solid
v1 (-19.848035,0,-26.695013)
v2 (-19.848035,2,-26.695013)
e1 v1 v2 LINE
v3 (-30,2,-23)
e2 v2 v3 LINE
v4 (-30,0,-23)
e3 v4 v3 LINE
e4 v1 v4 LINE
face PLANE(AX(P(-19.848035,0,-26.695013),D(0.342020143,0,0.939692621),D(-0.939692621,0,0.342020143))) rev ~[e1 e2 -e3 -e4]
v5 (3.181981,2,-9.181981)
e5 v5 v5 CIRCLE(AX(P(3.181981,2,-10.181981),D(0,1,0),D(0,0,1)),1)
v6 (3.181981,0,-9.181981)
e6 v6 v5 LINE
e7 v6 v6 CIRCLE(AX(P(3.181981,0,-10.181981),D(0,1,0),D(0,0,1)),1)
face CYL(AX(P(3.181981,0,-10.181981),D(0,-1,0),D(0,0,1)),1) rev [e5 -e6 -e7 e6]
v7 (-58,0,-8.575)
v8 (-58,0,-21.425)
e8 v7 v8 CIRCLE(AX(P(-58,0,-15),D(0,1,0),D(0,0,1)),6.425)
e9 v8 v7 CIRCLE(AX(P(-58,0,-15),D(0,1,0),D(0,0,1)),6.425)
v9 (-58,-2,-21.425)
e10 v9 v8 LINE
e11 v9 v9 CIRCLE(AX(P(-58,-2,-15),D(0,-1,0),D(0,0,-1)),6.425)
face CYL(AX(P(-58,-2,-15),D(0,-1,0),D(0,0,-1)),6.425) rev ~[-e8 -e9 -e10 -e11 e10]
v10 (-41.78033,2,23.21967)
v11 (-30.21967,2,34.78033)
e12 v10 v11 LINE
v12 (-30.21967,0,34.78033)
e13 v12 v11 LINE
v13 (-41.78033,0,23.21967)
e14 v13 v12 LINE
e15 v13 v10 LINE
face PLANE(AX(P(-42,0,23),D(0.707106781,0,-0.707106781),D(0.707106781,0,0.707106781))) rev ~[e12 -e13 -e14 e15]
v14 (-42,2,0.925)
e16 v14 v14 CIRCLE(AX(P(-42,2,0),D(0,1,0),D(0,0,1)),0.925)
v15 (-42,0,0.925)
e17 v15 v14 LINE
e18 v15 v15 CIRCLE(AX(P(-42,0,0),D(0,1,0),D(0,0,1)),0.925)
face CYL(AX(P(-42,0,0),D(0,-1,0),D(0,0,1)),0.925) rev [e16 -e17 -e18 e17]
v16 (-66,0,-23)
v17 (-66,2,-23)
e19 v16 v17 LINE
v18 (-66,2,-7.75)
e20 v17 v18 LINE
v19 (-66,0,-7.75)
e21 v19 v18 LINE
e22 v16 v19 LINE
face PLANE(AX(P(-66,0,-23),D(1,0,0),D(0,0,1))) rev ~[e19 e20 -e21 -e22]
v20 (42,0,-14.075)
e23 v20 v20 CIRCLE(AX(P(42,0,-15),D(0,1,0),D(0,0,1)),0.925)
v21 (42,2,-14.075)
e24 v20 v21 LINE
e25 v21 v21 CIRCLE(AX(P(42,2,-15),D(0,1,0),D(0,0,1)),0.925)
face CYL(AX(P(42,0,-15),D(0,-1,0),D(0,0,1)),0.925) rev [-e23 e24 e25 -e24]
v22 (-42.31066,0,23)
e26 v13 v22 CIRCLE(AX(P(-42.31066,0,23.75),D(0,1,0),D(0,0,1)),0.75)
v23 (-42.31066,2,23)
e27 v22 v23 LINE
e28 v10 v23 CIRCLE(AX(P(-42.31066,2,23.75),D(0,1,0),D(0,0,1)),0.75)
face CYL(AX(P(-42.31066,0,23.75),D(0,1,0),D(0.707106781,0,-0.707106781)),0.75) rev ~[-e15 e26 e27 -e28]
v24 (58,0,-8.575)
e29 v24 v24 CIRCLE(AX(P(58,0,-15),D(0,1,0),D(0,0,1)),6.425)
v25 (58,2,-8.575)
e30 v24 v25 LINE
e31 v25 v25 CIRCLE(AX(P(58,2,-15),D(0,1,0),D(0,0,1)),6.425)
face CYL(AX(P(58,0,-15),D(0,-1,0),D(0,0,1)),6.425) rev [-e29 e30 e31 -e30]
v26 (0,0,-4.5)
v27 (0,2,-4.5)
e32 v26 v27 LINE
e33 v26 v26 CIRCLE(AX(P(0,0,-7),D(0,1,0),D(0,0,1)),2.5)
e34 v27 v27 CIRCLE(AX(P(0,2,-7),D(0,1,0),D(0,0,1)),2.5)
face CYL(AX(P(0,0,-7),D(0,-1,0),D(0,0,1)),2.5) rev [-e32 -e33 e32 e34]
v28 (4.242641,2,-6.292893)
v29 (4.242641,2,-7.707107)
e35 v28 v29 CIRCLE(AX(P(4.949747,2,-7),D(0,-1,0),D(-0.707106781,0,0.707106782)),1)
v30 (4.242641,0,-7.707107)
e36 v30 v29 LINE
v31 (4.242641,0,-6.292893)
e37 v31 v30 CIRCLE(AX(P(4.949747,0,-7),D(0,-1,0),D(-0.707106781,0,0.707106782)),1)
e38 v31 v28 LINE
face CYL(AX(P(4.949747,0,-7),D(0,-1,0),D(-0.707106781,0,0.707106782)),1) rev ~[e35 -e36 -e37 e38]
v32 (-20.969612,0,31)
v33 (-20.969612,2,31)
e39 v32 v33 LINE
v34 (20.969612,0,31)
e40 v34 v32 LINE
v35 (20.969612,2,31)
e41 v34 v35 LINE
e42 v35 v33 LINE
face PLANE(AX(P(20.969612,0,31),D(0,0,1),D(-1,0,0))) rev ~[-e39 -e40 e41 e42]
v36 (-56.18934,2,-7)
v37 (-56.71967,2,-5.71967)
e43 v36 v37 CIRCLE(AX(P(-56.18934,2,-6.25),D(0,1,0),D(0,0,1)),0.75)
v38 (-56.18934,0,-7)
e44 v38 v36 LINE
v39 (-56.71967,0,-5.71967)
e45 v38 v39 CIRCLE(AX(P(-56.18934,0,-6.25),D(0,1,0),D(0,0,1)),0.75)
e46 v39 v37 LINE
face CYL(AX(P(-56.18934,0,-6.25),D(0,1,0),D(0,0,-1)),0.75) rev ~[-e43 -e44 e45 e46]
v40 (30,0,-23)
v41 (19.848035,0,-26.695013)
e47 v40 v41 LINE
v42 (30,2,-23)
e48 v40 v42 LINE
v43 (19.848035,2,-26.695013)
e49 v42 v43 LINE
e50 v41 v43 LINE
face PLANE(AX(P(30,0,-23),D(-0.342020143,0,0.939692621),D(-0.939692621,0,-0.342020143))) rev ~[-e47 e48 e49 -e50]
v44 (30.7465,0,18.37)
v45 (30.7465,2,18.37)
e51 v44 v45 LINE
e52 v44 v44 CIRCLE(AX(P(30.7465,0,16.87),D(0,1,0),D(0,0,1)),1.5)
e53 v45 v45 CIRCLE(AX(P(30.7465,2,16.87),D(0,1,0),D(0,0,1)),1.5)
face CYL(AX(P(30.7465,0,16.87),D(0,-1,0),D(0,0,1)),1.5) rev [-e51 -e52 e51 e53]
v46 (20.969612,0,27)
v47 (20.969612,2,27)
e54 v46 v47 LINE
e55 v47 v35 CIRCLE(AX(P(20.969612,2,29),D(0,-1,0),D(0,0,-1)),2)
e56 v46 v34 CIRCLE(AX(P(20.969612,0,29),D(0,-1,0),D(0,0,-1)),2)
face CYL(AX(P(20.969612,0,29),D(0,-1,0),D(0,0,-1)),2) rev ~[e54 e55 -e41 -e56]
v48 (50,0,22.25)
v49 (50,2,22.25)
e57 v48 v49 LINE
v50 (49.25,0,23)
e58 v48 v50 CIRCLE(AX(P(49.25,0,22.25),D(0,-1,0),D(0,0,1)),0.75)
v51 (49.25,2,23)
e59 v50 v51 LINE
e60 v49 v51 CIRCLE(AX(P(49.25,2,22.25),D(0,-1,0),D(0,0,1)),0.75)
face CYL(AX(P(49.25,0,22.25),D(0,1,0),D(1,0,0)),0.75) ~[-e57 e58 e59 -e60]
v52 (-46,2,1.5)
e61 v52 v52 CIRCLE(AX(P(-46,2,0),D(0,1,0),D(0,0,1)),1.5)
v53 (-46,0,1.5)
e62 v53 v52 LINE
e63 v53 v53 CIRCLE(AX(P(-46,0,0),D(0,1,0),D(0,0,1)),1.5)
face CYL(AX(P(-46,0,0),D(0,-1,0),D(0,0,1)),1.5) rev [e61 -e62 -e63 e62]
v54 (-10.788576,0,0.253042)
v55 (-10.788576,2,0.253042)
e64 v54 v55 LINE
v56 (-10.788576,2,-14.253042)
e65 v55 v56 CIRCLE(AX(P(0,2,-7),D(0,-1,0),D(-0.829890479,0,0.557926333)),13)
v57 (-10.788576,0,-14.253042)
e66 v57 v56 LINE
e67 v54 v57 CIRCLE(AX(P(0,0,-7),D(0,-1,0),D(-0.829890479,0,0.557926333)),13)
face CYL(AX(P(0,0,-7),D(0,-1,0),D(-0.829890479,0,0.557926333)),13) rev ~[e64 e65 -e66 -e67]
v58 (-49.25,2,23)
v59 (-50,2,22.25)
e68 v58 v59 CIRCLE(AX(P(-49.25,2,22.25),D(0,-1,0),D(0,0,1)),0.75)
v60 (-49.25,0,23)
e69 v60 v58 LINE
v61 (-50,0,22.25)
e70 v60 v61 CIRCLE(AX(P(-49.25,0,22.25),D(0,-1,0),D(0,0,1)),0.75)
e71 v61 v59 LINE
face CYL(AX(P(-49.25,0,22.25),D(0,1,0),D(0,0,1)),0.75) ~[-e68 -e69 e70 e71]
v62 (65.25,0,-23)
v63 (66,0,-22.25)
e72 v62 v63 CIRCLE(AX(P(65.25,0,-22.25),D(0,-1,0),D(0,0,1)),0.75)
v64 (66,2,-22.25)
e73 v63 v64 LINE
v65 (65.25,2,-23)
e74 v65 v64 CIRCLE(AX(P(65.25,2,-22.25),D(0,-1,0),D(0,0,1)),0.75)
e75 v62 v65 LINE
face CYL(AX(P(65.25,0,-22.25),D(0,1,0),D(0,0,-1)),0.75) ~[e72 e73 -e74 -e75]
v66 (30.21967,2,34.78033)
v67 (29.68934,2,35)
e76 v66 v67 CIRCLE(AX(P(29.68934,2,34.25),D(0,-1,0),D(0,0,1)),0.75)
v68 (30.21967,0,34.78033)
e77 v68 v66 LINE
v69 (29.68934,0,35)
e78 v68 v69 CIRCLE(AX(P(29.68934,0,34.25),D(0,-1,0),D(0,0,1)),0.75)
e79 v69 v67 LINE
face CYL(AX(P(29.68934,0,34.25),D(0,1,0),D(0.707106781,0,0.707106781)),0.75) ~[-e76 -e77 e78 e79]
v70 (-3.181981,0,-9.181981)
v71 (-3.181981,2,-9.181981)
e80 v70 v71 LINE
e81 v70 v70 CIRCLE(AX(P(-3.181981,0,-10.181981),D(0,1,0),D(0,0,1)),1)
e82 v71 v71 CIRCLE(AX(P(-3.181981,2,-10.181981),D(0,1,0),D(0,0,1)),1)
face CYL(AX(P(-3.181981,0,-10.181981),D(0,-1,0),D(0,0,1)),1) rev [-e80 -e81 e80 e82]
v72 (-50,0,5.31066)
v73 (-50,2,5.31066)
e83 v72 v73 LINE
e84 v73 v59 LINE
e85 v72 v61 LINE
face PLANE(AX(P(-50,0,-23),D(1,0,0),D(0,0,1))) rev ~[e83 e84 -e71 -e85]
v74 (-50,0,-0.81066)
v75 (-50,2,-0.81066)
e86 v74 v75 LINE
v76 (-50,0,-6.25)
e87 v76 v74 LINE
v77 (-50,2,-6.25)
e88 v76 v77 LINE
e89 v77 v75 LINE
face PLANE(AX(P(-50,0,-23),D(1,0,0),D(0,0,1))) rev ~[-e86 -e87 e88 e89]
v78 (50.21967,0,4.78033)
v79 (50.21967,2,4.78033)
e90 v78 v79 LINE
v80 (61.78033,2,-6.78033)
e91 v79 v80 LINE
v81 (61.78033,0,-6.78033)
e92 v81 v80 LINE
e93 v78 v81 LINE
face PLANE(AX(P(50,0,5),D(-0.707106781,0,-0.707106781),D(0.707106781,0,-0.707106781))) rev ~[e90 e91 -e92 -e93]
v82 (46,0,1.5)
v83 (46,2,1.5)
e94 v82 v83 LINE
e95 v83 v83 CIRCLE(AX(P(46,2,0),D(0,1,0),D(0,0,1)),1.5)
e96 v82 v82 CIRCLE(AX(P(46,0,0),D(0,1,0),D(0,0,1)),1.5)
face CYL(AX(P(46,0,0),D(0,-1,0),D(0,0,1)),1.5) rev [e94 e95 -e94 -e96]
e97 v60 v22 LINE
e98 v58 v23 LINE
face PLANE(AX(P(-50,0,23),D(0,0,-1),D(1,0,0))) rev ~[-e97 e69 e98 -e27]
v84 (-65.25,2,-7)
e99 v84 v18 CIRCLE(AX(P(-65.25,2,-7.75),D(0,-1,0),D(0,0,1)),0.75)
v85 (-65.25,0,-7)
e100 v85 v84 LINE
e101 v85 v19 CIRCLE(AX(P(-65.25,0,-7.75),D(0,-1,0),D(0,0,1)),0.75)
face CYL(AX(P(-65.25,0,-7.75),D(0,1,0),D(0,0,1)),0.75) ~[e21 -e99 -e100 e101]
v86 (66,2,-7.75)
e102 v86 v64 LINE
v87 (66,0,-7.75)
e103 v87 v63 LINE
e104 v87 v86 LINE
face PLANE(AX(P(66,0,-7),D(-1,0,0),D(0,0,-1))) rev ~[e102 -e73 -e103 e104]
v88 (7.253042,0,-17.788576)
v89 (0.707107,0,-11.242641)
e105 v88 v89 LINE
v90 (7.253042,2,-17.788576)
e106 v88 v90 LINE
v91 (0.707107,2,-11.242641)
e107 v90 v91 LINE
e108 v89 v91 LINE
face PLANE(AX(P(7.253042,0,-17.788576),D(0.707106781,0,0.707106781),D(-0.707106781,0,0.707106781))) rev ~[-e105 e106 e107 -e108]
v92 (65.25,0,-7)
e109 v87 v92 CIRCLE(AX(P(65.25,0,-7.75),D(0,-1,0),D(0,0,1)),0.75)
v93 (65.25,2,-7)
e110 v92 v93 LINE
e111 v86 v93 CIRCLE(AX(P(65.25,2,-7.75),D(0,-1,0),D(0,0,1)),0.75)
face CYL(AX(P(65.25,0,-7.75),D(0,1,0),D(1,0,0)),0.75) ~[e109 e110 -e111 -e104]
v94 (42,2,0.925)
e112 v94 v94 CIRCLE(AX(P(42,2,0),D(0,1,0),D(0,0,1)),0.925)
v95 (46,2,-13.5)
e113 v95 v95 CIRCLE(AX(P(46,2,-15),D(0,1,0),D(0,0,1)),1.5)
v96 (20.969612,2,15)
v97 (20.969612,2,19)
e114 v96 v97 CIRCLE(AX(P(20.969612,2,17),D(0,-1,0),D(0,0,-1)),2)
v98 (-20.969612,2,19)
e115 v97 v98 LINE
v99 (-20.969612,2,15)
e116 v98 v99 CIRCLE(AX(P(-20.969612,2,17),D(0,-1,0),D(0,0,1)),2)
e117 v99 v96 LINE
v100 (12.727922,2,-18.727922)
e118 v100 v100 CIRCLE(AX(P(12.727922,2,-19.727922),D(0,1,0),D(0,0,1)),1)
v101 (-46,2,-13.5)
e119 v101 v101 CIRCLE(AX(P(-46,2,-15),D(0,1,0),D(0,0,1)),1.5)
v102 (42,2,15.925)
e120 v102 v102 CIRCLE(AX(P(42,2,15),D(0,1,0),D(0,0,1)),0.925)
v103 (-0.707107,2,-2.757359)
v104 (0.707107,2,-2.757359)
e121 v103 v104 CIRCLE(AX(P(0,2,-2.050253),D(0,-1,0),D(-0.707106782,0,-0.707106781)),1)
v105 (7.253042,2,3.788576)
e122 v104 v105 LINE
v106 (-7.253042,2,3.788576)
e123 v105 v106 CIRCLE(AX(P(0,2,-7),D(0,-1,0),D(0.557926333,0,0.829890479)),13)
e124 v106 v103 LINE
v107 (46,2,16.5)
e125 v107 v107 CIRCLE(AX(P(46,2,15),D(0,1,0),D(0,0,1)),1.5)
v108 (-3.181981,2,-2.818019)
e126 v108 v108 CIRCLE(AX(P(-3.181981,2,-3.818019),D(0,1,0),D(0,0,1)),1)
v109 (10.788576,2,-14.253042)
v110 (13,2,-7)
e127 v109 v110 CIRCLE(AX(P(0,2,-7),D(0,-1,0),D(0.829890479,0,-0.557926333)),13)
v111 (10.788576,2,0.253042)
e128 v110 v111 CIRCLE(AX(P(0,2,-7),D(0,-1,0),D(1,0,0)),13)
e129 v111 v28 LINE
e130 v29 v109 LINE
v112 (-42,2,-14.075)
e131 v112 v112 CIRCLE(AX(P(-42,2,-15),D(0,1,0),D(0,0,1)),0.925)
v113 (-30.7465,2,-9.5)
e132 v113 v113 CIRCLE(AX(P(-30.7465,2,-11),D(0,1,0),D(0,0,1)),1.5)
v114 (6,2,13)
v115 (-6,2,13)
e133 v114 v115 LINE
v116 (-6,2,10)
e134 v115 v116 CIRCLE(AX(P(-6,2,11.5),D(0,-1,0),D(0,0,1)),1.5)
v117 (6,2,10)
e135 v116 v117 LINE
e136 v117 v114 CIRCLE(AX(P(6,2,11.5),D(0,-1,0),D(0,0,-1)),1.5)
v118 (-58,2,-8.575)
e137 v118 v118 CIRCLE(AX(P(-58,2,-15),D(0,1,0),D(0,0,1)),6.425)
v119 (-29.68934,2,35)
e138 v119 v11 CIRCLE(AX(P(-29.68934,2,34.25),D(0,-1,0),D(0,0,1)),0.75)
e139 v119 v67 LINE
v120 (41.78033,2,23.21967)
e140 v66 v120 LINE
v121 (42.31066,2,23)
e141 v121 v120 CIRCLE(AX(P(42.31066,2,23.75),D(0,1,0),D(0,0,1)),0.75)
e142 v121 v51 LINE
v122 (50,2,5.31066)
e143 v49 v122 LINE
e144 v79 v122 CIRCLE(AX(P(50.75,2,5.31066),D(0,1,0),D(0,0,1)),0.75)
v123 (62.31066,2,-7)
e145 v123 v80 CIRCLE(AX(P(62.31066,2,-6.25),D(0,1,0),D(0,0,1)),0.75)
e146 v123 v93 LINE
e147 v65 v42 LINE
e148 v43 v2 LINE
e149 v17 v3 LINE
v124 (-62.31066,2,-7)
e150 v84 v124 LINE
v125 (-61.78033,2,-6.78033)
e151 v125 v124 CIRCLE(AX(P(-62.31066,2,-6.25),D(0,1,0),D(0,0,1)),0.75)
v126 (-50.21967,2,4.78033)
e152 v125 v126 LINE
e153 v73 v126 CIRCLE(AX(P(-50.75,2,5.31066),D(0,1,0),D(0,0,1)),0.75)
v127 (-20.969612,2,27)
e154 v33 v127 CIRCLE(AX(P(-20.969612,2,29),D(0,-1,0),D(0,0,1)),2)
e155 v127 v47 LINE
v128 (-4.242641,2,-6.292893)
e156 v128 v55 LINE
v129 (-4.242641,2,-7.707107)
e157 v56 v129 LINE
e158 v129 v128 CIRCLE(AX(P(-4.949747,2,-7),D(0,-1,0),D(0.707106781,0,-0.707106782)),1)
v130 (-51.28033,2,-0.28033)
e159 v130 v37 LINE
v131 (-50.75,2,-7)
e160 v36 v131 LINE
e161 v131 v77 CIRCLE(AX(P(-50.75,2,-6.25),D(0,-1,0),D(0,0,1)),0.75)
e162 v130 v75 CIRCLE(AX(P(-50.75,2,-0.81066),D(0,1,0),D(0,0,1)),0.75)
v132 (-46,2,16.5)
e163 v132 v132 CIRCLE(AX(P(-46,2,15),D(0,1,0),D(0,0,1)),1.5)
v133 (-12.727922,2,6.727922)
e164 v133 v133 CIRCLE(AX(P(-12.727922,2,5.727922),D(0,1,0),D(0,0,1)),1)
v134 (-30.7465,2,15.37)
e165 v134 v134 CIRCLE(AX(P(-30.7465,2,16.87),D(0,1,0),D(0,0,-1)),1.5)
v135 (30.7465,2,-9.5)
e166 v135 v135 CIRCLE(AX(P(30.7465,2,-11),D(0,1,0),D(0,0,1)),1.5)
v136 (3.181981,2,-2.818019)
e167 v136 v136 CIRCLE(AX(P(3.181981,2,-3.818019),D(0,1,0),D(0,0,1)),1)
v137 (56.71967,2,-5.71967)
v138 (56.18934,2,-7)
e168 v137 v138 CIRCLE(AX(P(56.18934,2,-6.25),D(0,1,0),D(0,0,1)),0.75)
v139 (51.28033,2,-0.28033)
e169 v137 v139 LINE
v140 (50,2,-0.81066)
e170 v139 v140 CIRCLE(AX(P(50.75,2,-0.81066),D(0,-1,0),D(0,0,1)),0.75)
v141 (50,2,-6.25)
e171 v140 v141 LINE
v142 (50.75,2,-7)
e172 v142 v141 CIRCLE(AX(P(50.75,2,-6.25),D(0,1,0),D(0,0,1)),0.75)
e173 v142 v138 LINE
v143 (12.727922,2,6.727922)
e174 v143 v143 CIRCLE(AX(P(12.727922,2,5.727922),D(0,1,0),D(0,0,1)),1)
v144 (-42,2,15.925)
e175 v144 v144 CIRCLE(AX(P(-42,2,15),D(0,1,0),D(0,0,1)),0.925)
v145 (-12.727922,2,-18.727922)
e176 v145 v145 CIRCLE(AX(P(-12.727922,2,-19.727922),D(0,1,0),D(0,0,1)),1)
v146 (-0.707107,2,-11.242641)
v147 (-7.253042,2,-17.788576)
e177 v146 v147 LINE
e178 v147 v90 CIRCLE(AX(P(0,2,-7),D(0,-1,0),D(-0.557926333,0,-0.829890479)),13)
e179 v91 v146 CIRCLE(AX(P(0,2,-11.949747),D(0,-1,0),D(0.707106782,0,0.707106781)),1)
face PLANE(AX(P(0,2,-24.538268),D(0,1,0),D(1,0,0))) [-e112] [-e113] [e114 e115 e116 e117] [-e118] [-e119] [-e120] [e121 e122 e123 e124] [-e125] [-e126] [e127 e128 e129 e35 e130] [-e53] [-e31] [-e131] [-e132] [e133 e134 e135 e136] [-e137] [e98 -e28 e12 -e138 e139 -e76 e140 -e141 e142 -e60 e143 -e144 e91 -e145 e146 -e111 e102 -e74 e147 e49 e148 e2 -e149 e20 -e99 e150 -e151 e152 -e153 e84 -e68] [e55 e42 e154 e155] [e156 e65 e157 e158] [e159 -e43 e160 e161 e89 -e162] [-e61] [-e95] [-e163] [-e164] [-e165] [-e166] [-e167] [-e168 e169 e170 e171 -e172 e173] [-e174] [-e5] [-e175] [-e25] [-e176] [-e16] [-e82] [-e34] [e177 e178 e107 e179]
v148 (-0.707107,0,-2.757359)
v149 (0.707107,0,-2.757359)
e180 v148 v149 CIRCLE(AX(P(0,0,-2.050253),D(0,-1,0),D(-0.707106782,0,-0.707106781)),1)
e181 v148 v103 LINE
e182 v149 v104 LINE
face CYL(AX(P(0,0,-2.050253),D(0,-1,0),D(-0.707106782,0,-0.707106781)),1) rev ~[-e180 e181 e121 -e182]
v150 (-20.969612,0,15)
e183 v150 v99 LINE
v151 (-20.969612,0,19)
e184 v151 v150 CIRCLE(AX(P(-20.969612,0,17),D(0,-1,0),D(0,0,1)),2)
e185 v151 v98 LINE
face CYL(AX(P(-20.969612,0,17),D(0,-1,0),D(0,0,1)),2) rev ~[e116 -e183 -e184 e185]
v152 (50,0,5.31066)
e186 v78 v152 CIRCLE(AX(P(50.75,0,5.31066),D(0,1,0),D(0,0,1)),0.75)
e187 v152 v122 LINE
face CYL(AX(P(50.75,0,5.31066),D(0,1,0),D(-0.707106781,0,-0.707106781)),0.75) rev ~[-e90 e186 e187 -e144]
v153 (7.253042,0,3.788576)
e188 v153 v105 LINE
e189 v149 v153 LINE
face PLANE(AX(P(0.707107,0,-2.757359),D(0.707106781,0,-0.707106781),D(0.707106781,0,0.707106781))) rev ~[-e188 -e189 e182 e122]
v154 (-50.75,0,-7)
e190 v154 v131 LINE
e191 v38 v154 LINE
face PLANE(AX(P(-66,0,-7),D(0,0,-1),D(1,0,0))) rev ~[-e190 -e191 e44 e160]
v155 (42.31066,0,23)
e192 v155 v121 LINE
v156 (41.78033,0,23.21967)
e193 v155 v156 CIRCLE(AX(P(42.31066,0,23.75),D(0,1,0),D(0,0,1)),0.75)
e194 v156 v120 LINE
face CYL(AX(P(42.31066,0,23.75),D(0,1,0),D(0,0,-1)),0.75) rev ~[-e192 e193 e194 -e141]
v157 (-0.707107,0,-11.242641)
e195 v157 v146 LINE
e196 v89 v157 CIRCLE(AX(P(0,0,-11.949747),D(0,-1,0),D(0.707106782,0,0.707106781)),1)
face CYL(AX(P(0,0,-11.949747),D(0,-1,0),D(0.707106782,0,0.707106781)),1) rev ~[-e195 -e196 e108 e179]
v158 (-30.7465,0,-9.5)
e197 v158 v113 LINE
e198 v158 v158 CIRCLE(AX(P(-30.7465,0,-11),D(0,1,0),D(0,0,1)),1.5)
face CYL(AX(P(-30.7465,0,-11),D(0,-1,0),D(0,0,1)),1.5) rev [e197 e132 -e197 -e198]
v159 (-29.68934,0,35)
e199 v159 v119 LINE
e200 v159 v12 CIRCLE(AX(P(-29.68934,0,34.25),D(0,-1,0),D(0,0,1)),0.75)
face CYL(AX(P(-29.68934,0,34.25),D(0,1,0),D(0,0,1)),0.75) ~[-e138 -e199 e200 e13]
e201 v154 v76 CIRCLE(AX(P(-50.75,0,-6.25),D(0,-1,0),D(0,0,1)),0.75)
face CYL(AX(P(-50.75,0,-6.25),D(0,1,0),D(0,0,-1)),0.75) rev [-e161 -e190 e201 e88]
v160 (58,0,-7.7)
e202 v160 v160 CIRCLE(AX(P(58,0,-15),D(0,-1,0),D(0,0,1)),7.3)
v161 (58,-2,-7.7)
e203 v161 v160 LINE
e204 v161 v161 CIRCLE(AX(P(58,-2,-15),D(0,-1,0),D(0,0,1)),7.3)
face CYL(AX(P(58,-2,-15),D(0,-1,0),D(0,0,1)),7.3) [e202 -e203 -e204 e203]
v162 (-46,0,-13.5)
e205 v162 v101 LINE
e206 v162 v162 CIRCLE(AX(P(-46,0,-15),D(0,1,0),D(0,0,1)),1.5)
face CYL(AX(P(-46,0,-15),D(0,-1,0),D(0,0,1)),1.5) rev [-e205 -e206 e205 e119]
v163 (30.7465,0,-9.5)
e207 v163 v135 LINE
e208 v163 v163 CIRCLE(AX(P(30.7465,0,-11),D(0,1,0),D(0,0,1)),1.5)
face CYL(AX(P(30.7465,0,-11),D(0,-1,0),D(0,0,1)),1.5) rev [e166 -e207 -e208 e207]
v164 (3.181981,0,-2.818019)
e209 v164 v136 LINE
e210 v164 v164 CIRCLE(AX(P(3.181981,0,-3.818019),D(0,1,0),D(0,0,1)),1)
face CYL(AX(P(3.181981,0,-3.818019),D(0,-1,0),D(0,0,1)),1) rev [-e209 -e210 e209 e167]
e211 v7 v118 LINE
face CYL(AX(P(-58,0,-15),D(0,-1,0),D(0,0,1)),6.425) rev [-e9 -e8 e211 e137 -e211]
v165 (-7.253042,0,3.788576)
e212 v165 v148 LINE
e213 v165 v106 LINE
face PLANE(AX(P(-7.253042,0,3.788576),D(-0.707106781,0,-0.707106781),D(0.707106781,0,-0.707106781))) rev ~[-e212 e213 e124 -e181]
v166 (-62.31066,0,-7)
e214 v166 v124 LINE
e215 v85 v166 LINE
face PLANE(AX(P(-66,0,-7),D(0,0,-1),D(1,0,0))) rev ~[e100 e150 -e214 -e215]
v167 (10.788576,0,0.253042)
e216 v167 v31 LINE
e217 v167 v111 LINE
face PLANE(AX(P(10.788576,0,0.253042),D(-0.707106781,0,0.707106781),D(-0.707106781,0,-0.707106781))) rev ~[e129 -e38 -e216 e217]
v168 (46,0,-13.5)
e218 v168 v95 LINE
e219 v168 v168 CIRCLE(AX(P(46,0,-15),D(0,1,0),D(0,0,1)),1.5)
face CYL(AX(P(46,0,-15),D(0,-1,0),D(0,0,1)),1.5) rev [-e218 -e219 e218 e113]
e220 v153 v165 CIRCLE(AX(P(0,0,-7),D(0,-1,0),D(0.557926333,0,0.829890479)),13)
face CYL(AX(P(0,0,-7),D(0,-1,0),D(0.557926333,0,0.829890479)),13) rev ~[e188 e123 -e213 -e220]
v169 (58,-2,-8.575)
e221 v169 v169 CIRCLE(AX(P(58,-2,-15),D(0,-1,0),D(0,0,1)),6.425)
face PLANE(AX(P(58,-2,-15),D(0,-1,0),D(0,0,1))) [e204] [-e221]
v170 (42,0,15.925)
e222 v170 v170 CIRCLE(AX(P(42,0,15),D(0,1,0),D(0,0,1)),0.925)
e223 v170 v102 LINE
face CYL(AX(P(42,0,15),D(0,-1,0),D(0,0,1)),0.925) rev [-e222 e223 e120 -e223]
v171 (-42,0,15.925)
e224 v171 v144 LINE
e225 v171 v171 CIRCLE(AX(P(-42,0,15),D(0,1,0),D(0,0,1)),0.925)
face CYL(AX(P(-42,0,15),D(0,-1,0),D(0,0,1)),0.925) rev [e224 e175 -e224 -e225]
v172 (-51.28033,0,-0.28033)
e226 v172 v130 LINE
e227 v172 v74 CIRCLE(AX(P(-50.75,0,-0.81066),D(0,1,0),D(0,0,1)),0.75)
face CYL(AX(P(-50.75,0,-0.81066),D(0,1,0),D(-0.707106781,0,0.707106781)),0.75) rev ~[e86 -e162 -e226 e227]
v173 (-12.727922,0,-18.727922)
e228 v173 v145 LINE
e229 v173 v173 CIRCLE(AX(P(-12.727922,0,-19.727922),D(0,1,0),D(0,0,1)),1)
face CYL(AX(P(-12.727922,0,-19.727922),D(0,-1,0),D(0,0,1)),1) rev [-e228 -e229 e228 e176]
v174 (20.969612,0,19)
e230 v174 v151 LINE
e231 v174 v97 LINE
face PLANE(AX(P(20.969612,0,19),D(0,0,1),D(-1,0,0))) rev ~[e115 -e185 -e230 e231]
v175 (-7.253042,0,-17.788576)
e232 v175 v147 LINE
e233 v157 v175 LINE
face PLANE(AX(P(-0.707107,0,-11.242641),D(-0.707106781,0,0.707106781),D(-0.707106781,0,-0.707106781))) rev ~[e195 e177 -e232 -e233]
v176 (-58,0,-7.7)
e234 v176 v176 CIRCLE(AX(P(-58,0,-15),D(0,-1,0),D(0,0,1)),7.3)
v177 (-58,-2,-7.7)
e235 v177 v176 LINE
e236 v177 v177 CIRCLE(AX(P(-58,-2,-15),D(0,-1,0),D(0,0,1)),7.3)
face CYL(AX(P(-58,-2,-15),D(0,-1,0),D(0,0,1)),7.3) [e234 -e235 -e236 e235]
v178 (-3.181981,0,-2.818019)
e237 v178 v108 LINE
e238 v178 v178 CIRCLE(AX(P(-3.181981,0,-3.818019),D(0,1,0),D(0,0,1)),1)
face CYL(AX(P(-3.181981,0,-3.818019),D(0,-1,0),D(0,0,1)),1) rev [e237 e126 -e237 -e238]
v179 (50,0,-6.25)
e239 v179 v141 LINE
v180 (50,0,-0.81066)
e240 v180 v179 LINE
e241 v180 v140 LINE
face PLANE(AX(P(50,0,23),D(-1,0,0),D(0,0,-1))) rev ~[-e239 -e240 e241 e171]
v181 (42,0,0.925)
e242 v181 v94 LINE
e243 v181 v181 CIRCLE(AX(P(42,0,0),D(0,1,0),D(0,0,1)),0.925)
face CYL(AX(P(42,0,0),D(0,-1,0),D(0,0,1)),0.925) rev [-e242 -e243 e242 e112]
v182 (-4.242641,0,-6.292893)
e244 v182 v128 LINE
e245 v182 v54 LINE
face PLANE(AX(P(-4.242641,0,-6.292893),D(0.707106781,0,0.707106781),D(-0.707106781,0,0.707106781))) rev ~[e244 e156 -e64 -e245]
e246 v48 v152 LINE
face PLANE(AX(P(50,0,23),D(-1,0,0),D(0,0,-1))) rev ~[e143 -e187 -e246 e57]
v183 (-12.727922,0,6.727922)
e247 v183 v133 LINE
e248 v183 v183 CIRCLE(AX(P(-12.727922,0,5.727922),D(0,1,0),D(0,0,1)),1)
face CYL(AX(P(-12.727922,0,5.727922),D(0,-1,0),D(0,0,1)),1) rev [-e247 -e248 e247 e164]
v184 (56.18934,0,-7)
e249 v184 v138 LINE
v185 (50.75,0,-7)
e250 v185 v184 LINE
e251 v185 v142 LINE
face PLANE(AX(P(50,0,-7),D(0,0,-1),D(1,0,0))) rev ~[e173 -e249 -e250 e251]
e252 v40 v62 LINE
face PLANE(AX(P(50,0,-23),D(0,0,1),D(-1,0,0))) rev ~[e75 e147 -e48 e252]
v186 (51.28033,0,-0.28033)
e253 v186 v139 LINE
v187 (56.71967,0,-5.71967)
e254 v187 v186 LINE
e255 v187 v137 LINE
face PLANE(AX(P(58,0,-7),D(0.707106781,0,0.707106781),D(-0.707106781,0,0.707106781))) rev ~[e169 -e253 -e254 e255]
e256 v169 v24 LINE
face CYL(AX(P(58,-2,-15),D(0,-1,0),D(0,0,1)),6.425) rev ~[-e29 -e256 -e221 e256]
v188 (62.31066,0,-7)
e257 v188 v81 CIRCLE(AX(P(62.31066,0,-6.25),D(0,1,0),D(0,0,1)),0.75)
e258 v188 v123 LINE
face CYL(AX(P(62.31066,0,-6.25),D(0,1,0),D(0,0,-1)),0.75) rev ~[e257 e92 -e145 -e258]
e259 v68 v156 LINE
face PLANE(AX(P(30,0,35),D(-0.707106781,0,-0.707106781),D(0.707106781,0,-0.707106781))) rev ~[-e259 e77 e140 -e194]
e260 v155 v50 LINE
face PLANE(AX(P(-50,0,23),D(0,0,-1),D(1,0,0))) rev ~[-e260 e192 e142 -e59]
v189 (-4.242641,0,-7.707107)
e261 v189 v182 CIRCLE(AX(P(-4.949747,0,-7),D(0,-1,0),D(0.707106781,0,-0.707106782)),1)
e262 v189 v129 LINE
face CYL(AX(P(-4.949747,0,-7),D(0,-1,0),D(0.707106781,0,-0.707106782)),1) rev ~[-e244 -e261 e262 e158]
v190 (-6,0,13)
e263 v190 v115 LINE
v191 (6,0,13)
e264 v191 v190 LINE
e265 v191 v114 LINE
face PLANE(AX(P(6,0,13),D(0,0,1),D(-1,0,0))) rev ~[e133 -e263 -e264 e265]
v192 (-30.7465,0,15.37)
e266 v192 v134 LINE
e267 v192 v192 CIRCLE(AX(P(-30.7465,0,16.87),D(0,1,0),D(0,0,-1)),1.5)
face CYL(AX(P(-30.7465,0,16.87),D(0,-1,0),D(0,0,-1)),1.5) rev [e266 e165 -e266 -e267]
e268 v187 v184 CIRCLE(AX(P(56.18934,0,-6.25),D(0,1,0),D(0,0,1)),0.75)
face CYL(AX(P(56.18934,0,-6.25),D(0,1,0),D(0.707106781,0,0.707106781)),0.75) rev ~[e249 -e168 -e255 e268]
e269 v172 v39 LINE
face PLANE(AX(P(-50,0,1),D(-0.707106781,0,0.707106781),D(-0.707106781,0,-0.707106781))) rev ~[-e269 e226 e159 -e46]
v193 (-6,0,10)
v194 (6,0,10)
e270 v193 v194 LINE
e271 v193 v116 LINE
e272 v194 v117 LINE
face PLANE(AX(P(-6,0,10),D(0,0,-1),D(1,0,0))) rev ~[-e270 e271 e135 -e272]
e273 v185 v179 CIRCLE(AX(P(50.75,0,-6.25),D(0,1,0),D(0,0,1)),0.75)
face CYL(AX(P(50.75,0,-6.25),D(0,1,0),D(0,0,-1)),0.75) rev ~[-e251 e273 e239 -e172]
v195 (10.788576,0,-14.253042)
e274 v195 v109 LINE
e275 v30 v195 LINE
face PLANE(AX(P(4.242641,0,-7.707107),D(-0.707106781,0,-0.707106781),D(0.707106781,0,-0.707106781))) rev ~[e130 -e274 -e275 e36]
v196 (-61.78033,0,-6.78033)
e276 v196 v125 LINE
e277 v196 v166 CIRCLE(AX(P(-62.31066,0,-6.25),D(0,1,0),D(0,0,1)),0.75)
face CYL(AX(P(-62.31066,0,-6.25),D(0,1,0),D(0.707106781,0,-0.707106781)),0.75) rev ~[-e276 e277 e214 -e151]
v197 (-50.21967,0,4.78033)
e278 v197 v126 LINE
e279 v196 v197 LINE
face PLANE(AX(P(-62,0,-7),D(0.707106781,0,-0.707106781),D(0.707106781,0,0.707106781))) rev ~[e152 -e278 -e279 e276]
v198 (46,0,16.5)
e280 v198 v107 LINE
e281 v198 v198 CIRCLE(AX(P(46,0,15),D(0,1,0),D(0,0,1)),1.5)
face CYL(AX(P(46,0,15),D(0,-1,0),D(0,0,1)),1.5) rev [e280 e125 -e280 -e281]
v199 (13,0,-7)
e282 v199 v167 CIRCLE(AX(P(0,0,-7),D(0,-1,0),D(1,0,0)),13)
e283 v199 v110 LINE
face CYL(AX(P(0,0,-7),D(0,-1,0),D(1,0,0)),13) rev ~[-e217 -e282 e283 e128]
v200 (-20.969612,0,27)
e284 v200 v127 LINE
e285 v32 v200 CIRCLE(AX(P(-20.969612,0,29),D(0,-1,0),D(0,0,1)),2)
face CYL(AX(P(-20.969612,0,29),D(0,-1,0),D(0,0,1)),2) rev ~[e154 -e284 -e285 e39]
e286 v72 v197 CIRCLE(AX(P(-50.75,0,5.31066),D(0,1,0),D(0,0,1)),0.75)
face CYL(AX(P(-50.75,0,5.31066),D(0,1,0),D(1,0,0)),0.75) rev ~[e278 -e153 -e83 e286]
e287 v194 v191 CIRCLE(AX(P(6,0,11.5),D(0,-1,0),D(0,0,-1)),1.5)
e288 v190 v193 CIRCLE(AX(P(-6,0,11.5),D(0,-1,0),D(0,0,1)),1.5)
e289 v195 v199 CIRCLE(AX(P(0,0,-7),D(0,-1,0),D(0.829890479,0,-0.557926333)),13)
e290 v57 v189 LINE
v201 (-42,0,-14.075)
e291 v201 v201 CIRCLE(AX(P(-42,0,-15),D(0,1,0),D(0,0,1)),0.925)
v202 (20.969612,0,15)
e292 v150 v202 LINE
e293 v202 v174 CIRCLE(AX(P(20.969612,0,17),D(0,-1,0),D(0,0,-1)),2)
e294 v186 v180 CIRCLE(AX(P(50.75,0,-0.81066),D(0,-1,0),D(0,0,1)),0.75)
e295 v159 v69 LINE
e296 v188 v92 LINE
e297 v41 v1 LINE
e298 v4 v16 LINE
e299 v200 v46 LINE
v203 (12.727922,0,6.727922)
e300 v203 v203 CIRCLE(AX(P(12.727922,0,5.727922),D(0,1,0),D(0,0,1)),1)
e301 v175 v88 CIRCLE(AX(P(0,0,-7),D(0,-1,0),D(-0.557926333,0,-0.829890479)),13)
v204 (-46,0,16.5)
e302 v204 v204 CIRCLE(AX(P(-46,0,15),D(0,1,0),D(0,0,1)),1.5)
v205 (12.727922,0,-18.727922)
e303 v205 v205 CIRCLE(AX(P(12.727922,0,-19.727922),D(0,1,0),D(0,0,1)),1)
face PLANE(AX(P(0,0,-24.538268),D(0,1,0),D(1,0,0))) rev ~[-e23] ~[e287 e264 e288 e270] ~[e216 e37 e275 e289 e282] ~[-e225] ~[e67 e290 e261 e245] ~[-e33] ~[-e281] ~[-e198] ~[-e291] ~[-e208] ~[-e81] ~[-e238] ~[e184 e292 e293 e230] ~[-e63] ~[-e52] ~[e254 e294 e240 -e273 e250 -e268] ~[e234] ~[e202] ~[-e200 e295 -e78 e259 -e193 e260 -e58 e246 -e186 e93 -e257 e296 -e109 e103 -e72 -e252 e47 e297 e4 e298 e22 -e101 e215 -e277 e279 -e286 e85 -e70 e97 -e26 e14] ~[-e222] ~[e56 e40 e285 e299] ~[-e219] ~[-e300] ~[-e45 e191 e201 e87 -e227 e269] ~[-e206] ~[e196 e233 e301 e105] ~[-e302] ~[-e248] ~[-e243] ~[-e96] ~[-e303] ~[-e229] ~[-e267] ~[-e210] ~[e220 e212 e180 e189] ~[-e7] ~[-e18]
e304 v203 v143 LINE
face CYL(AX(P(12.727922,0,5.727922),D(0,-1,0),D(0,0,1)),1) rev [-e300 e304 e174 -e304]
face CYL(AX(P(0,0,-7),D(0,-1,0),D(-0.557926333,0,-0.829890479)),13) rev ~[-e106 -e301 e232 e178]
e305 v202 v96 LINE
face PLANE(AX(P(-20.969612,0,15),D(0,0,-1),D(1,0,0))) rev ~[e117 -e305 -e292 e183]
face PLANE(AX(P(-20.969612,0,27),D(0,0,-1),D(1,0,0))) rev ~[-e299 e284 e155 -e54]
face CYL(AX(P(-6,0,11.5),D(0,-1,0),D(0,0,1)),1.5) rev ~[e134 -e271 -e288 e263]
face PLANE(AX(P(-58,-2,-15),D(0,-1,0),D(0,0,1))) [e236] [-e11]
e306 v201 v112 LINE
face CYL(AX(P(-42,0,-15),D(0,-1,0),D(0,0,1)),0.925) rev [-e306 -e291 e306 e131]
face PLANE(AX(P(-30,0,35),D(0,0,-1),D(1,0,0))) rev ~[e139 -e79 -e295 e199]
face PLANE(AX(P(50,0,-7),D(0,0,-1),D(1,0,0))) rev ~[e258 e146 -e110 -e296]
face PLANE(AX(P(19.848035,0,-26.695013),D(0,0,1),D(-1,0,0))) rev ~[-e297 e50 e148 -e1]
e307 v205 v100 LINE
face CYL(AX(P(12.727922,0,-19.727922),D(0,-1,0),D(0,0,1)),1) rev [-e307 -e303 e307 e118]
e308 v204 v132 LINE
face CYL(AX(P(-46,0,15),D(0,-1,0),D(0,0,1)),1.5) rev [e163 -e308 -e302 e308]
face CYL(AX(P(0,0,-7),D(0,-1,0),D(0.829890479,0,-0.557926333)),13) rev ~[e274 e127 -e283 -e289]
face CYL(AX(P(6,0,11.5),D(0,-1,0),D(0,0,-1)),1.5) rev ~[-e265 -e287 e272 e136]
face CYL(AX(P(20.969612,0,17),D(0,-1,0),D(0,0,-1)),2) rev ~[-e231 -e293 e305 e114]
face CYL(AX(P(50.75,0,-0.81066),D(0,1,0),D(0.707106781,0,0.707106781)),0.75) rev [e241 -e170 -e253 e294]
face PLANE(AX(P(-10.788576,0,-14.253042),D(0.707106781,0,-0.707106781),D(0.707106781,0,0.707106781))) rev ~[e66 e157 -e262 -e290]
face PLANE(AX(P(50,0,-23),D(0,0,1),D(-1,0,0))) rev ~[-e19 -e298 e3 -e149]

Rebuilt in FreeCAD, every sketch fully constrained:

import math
import FreeCAD as App
import Part
import Sketcher
Q = App.Units.Quantity


def edges_at(feature, points):
    """Names of the edges that pass closest to the given points."""
    edges = feature.Shape.Edges
    near = lambda p: min(range(len(edges)), key=lambda i: edges[i].distToShape(Part.Vertex(*p))[0])
    return sorted({f"Edge{near(p) + 1}" for p in points})

doc = App.newDocument("Part")
body = doc.addObject("PartDesign::Body", "Body")

sketch1 = body.newObject("Sketcher::SketchObject", "Sketch")
sketch1.AttachmentSupport = (doc.getObject("XZ_Plane"), [""])
sketch1.MapMode = "FlatFace"
sketch1.addGeometry([
    Part.LineSegment(App.Vector(-19.8, -26.7, 0), App.Vector(-30, -23, 0)),
    Part.LineSegment(App.Vector(-30, -23, 0), App.Vector(-66, -23, 0)),
    Part.LineSegment(App.Vector(-66, -23, 0), App.Vector(-66, -7, 0)),
    Part.LineSegment(App.Vector(-66, -7, 0), App.Vector(-62, -7, 0)),
    Part.LineSegment(App.Vector(-62, -7, 0), App.Vector(-50, 5, 0)),
    Part.LineSegment(App.Vector(-50, 5, 0), App.Vector(-50, 23, 0)),
    Part.LineSegment(App.Vector(-50, 23, 0), App.Vector(-42, 23, 0)),
    Part.LineSegment(App.Vector(-42, 23, 0), App.Vector(-30, 35, 0)),
    Part.LineSegment(App.Vector(-30, 35, 0), App.Vector(30, 35, 0)),
    Part.LineSegment(App.Vector(30, 35, 0), App.Vector(42, 23, 0)),
    Part.LineSegment(App.Vector(42, 23, 0), App.Vector(50, 23, 0)),
    Part.LineSegment(App.Vector(50, 23, 0), App.Vector(50, 5, 0)),
    Part.LineSegment(App.Vector(50, 5, 0), App.Vector(62, -7, 0)),
    Part.LineSegment(App.Vector(62, -7, 0), App.Vector(66, -7, 0)),
    Part.LineSegment(App.Vector(66, -7, 0), App.Vector(66, -23, 0)),
    Part.LineSegment(App.Vector(66, -23, 0), App.Vector(30, -23, 0)),
    Part.LineSegment(App.Vector(30, -23, 0), App.Vector(19.8, -26.7, 0)),
    Part.LineSegment(App.Vector(19.8, -26.7, 0), App.Vector(-19.8, -26.7, 0)),
    Part.LineSegment(App.Vector(-50, -7, 0), App.Vector(-50, 1, 0)),
    Part.LineSegment(App.Vector(-50, 1, 0), App.Vector(-58, -7, 0)),
    Part.LineSegment(App.Vector(-58, -7, 0), App.Vector(-50, -7, 0)),
    Part.Circle(App.Vector(46, -15, 0), App.Vector(0, 0, 1), 1.5),
    Part.LineSegment(App.Vector(50, 1, 0), App.Vector(50, -7, 0)),
    Part.LineSegment(App.Vector(50, -7, 0), App.Vector(58, -7, 0)),
    Part.LineSegment(App.Vector(58, -7, 0), App.Vector(50, 1, 0)),
    Part.Circle(App.Vector(-46, 15, 0), App.Vector(0, 0, 1), 1.5),
    Part.Circle(App.Vector(-42, 15, 0), App.Vector(0, 0, 1), 0.9),
    Part.Circle(App.Vector(-30.7, 16.9, 0), App.Vector(0, 0, 1), 1.5),
    Part.Circle(App.Vector(-46, 0, 0), App.Vector(0, 0, 1), 1.5),
    Part.Circle(App.Vector(-42, 0, 0), App.Vector(0, 0, 1), 0.9),
    Part.Circle(App.Vector(-12.7, 5.7, 0), App.Vector(0, 0, 1), 1),
    Part.LineSegment(App.Vector(21, 19, 0), App.Vector(-21, 19, 0)),
    Part.ArcOfCircle(Part.Circle(App.Vector(-21, 17, 0), App.Vector(0, 0, 1), 2), math.radians(90), math.radians(270)),
    Part.LineSegment(App.Vector(-21, 15, 0), App.Vector(21, 15, 0)),
    Part.ArcOfCircle(Part.Circle(App.Vector(21, 17, 0), App.Vector(0, 0, 1), 2), math.radians(-90), math.radians(90)),
    Part.LineSegment(App.Vector(6, 13, 0), App.Vector(-6, 13, 0)),
    Part.ArcOfCircle(Part.Circle(App.Vector(-6, 11.5, 0), App.Vector(0, 0, 1), 1.5), math.radians(90), math.radians(270)),
    Part.LineSegment(App.Vector(-6, 10, 0), App.Vector(6, 10, 0)),
    Part.ArcOfCircle(Part.Circle(App.Vector(6, 11.5, 0), App.Vector(0, 0, 1), 1.5), math.radians(-90), math.radians(90)),
    Part.Circle(App.Vector(30.7, 16.9, 0), App.Vector(0, 0, 1), 1.5),
    Part.Circle(App.Vector(42, 15, 0), App.Vector(0, 0, 1), 0.9),
    Part.Circle(App.Vector(46, 15, 0), App.Vector(0, 0, 1), 1.5),
    Part.Circle(App.Vector(12.7, 5.7, 0), App.Vector(0, 0, 1), 1),
    Part.Circle(App.Vector(42, 0, 0), App.Vector(0, 0, 1), 0.9),
    Part.Circle(App.Vector(46, 0, 0), App.Vector(0, 0, 1), 1.5),
    Part.Circle(App.Vector(-30.7, -11, 0), App.Vector(0, 0, 1), 1.5),
    Part.Circle(App.Vector(-46, -15, 0), App.Vector(0, 0, 1), 1.5),
    Part.Circle(App.Vector(-42, -15, 0), App.Vector(0, 0, 1), 0.9),
    Part.Circle(App.Vector(-12.7, -19.7, 0), App.Vector(0, 0, 1), 1),
    Part.Circle(App.Vector(30.7, -11, 0), App.Vector(0, 0, 1), 1.5),
    Part.Circle(App.Vector(12.7, -19.7, 0), App.Vector(0, 0, 1), 1),
    Part.Circle(App.Vector(42, -15, 0), App.Vector(0, 0, 1), 0.9),
    Part.Circle(App.Vector(-58, -15, 0), App.Vector(0, 0, 1), 6.4),
    Part.ArcOfCircle(Part.Circle(App.Vector(-21, 29, 0), App.Vector(0, 0, 1), 2), math.radians(90), math.radians(270)),
    Part.LineSegment(App.Vector(-21, 27, 0), App.Vector(21, 27, 0)),
    Part.ArcOfCircle(Part.Circle(App.Vector(21, 29, 0), App.Vector(0, 0, 1), 2), math.radians(-90), math.radians(90)),
    Part.LineSegment(App.Vector(21, 31, 0), App.Vector(-21, 31, 0)),
    Part.Circle(App.Vector(58, -15, 0), App.Vector(0, 0, 1), 6.4),
    Part.ArcOfCircle(Part.Circle(App.Vector(0, -7, 0), App.Vector(0, 0, 1), 13), math.radians(0), math.radians(34)),
    Part.LineSegment(App.Vector(10.8, 0.3, 0), App.Vector(4.2, -6.3, 0)),
    Part.ArcOfCircle(Part.Circle(App.Vector(4.9, -7, 0), App.Vector(0, 0, 1), 1), math.radians(135), math.radians(225)),
    Part.LineSegment(App.Vector(4.2, -7.7, 0), App.Vector(10.8, -14.3, 0)),
    Part.ArcOfCircle(Part.Circle(App.Vector(0, -7, 0), App.Vector(0, 0, 1), 13), math.radians(-34), math.radians(0)),
    Part.ArcOfCircle(Part.Circle(App.Vector(0, -7, 0), App.Vector(0, 0, 1), 13), math.radians(-124), math.radians(-56)),
    Part.LineSegment(App.Vector(7.3, -17.8, 0), App.Vector(0.7, -11.2, 0)),
    Part.ArcOfCircle(Part.Circle(App.Vector(0, -11.9, 0), App.Vector(0, 0, 1), 1), math.radians(45), math.radians(135)),
    Part.LineSegment(App.Vector(-0.7, -11.2, 0), App.Vector(-7.3, -17.8, 0)),
    Part.ArcOfCircle(Part.Circle(App.Vector(0, -7, 0), App.Vector(0, 0, 1), 13), math.radians(146), math.radians(214)),
    Part.LineSegment(App.Vector(-10.8, -14.3, 0), App.Vector(-4.2, -7.7, 0)),
    Part.ArcOfCircle(Part.Circle(App.Vector(-4.9, -7, 0), App.Vector(0, 0, 1), 1), math.radians(-45), math.radians(45)),
    Part.LineSegment(App.Vector(-4.2, -6.3, 0), App.Vector(-10.8, 0.3, 0)),
    Part.ArcOfCircle(Part.Circle(App.Vector(0, -7, 0), App.Vector(0, 0, 1), 13), math.radians(56), math.radians(124)),
    Part.LineSegment(App.Vector(-7.3, 3.8, 0), App.Vector(-0.7, -2.8, 0)),
    Part.ArcOfCircle(Part.Circle(App.Vector(0, -2.1, 0), App.Vector(0, 0, 1), 1), math.radians(-135), math.radians(-45)),
    Part.LineSegment(App.Vector(0.7, -2.8, 0), App.Vector(7.3, 3.8, 0)),
    Part.Circle(App.Vector(3.2, -3.8, 0), App.Vector(0, 0, 1), 1),
    Part.Circle(App.Vector(-3.2, -10.2, 0), App.Vector(0, 0, 1), 1),
    Part.Circle(App.Vector(3.2, -10.2, 0), App.Vector(0, 0, 1), 1),
    Part.Circle(App.Vector(0, -7, 0), App.Vector(0, 0, 1), 2.5),
    Part.Circle(App.Vector(-3.2, -3.8, 0), App.Vector(0, 0, 1), 1),
], False)
sketch1.addConstraint([
    Sketcher.Constraint("Coincident", 0, 2, 1, 1),
    Sketcher.Constraint("Coincident", 1, 2, 2, 1),
    Sketcher.Constraint("Coincident", 2, 2, 3, 1),
    Sketcher.Constraint("Coincident", 3, 2, 4, 1),
    Sketcher.Constraint("Coincident", 4, 2, 5, 1),
    Sketcher.Constraint("Coincident", 5, 2, 6, 1),
    Sketcher.Constraint("Coincident", 6, 2, 7, 1),
    Sketcher.Constraint("Coincident", 7, 2, 8, 1),
    Sketcher.Constraint("Coincident", 8, 2, 9, 1),
    Sketcher.Constraint("Coincident", 9, 2, 10, 1),
    Sketcher.Constraint("Coincident", 10, 2, 11, 1),
    Sketcher.Constraint("Coincident", 11, 2, 12, 1),
    Sketcher.Constraint("Coincident", 12, 2, 13, 1),
    Sketcher.Constraint("Coincident", 13, 2, 14, 1),
    Sketcher.Constraint("Coincident", 14, 2, 15, 1),
    Sketcher.Constraint("Coincident", 15, 2, 16, 1),
    Sketcher.Constraint("Coincident", 16, 2, 17, 1),
    Sketcher.Constraint("Coincident", 17, 2, 0, 1),
    Sketcher.Constraint("Coincident", 18, 2, 19, 1),
    Sketcher.Constraint("Coincident", 19, 2, 20, 1),
    Sketcher.Constraint("Coincident", 20, 2, 18, 1),
    Sketcher.Constraint("Coincident", 22, 2, 23, 1),
    Sketcher.Constraint("Coincident", 23, 2, 24, 1),
    Sketcher.Constraint("Coincident", 24, 2, 22, 1),
    Sketcher.Constraint("Tangent", 31, 2, 32, 1),
    Sketcher.Constraint("Tangent", 32, 2, 33, 1),
    Sketcher.Constraint("Tangent", 33, 2, 34, 1),
    Sketcher.Constraint("Tangent", 34, 2, 31, 1),
    Sketcher.Constraint("Tangent", 35, 2, 36, 1),
    Sketcher.Constraint("Tangent", 36, 2, 37, 1),
    Sketcher.Constraint("Tangent", 37, 2, 38, 1),
    Sketcher.Constraint("Tangent", 38, 2, 35, 1),
    Sketcher.Constraint("Tangent", 53, 2, 54, 1),
    Sketcher.Constraint("Tangent", 54, 2, 55, 1),
    Sketcher.Constraint("Tangent", 55, 2, 56, 1),
    Sketcher.Constraint("Tangent", 56, 2, 53, 1),
    Sketcher.Constraint("Coincident", 58, 2, 59, 1),
    Sketcher.Constraint("Tangent", 59, 2, 60, 1),
    Sketcher.Constraint("Tangent", 60, 2, 61, 1),
    Sketcher.Constraint("Coincident", 61, 2, 62, 1),
    Sketcher.Constraint("Tangent", 62, 2, 58, 1),
    Sketcher.Constraint("Coincident", 63, 2, 64, 1),
    Sketcher.Constraint("Tangent", 64, 2, 65, 1),
    Sketcher.Constraint("Tangent", 65, 2, 66, 1),
    Sketcher.Constraint("Coincident", 66, 2, 63, 1),
    Sketcher.Constraint("Coincident", 67, 2, 68, 1),
    Sketcher.Constraint("Tangent", 68, 2, 69, 1),
    Sketcher.Constraint("Tangent", 69, 2, 70, 1),
    Sketcher.Constraint("Coincident", 70, 2, 67, 1),
    Sketcher.Constraint("Coincident", 71, 2, 72, 1),
    Sketcher.Constraint("Tangent", 72, 2, 73, 1),
    Sketcher.Constraint("Tangent", 73, 2, 74, 1),
    Sketcher.Constraint("Coincident", 74, 2, 71, 1),
    Sketcher.Constraint("Horizontal", 1),
    Sketcher.Constraint("Vertical", 2),
    Sketcher.Constraint("Horizontal", 3),
    Sketcher.Constraint("Vertical", 5),
    Sketcher.Constraint("Horizontal", 6),
    Sketcher.Constraint("Horizontal", 8),
    Sketcher.Constraint("Horizontal", 10),
    Sketcher.Constraint("Vertical", 11),
    Sketcher.Constraint("Horizontal", 13),
    Sketcher.Constraint("Vertical", 14),
    Sketcher.Constraint("Horizontal", 15),
    Sketcher.Constraint("Horizontal", 17),
    Sketcher.Constraint("Vertical", 18),
    Sketcher.Constraint("Horizontal", 20),
    Sketcher.Constraint("Vertical", 22),
    Sketcher.Constraint("Horizontal", 23),
    Sketcher.Constraint("Horizontal", 31),
    Sketcher.Constraint("Horizontal", 33),
    Sketcher.Constraint("Horizontal", 35),
    Sketcher.Constraint("Horizontal", 37),
    Sketcher.Constraint("Horizontal", 54),
    Sketcher.Constraint("Horizontal", 56),
    Sketcher.Constraint("Coincident", 63, 3, 58, 3),
    Sketcher.Constraint("Coincident", 67, 3, 58, 3),
    Sketcher.Constraint("Coincident", 71, 3, 58, 3),
    Sketcher.Constraint("Coincident", 78, 3, 58, 3),
    Sketcher.Constraint("Equal", 21, 25),
    Sketcher.Constraint("Equal", 25, 27),
    Sketcher.Constraint("Equal", 27, 28),
    Sketcher.Constraint("Equal", 26, 29),
    Sketcher.Constraint("Equal", 28, 36),
    Sketcher.Constraint("Equal", 38, 39),
    Sketcher.Constraint("Equal", 29, 40),
    Sketcher.Constraint("Equal", 39, 41),
    Sketcher.Constraint("Equal", 30, 42),
    Sketcher.Constraint("Equal", 40, 43),
    Sketcher.Constraint("Equal", 41, 44),
    Sketcher.Constraint("Equal", 44, 45),
    Sketcher.Constraint("Equal", 45, 46),
    Sketcher.Constraint("Equal", 43, 47),
    Sketcher.Constraint("Equal", 42, 48),
    Sketcher.Constraint("Equal", 46, 49),
    Sketcher.Constraint("Equal", 48, 50),
    Sketcher.Constraint("Equal", 47, 51),
    Sketcher.Constraint("Equal", 34, 53),
    Sketcher.Constraint("Equal", 52, 57),
    Sketcher.Constraint("Equal", 50, 60),
    Sketcher.Constraint("Equal", 58, 62),
    Sketcher.Constraint("Equal", 62, 63),
    Sketcher.Constraint("Equal", 60, 65),
    Sketcher.Constraint("Equal", 63, 67),
    Sketcher.Constraint("Equal", 65, 69),
    Sketcher.Constraint("Equal", 67, 71),
    Sketcher.Constraint("Equal", 69, 73),
    Sketcher.Constraint("Equal", 73, 75),
    Sketcher.Constraint("Equal", 75, 76),
    Sketcher.Constraint("Equal", 76, 77),
    Sketcher.Constraint("Equal", 77, 79),
    Sketcher.Constraint("Symmetric", 21, 3, 25, 3, -1, 1),
    Sketcher.Constraint("Symmetric", 29, 3, 43, 3, -1, 1),
    Sketcher.Constraint("Symmetric", 28, 3, 44, 3, -1, 1),
    Sketcher.Constraint("Symmetric", 41, 3, 46, 3, -1, 1),
    Sketcher.Constraint("Symmetric", 40, 3, 47, 3, -1, 1),
    Sketcher.Constraint("Symmetric", 26, 3, 51, 3, -1, 1),
    Sketcher.Constraint("Symmetric", 27, 3, 39, 3, -2),
    Sketcher.Constraint("Symmetric", 26, 3, 40, 3, -2),
    Sketcher.Constraint("Symmetric", 25, 3, 41, 3, -2),
    Sketcher.Constraint("Symmetric", 30, 3, 42, 3, -2),
    Sketcher.Constraint("Symmetric", 45, 3, 49, 3, -2),
    Sketcher.Constraint("Symmetric", 48, 3, 50, 3, -2),
    Sketcher.Constraint("Symmetric", 52, 3, 57, 3, -2),
    Sketcher.Constraint("Symmetric", 60, 3, 69, 3, -2),
    Sketcher.Constraint("Symmetric", 76, 3, 77, 3, -2),
    Sketcher.Constraint("Symmetric", 75, 3, 79, 3, -2),
    Sketcher.Constraint("Symmetric", 6, 2, 9, 2, -2),
    Sketcher.Constraint("Symmetric", 4, 2, 11, 2, -2),
    Sketcher.Constraint("Symmetric", 3, 2, 12, 2, -2),
    Sketcher.Constraint("Symmetric", 1, 2, 14, 2, -2),
    Sketcher.Constraint("Symmetric", 20, 2, 22, 2, -2),
    Sketcher.Constraint("Symmetric", 64, 2, 65, 2, -2),
    Sketcher.Constraint("Symmetric", 61, 2, 67, 2, -2),
    Sketcher.Constraint("Symmetric", 72, 2, 73, 2, -2),
    Sketcher.Constraint("PointOnObject", 28, 3, -1),
    Sketcher.Constraint("PointOnObject", 29, 3, -1),
    Sketcher.Constraint("Parallel", 4, 7),
    Sketcher.Constraint("Perpendicular", 7, 9),
    Sketcher.Constraint("Parallel", 9, 12),
    Sketcher.Constraint("Perpendicular", 12, 19),
    Sketcher.Constraint("Perpendicular", 19, 24),
    Sketcher.Constraint("Perpendicular", 24, 59),
    Sketcher.Constraint("Perpendicular", 59, 61),
    Sketcher.Constraint("Parallel", 61, 64),
    Sketcher.Constraint("Perpendicular", 68, 70),
    Sketcher.Constraint("Parallel", 70, 72),
    Sketcher.Constraint("Horizontal", 25, 3, 26, 3),
    Sketcher.Constraint("Horizontal", 51, 3, 52, 3),
    Sketcher.Constraint("Horizontal", 58, 3, 60, 3),
    Sketcher.Constraint("Horizontal", 78, 3, 2, 2),
    Sketcher.Constraint("Horizontal", 13, 2, 19, 2),
    Sketcher.Constraint("Horizontal", 18, 2, 24, 2),
    Sketcher.Constraint("Horizontal", 41, 3, 32, 2),
    Sketcher.Constraint("Horizontal", 23, 2, 62, 2),
    Sketcher.Constraint("Vertical", 25, 3, 28, 3),
    Sketcher.Constraint("Vertical", 26, 3, 29, 3),
    Sketcher.Constraint("Vertical", 27, 3, 45, 3),
    Sketcher.Constraint("Vertical", 30, 3, 48, 3),
    Sketcher.Constraint("Vertical", 32, 3, 53, 3),
    Sketcher.Constraint("Vertical", 34, 3, 55, 3),
    Sketcher.Constraint("Vertical", 75, 3, 77, 3),
    Sketcher.Constraint("Vertical", 47, 3, 6, 2),
    Sketcher.Constraint("Vertical", 0, 2, 7, 2),
    Sketcher.Constraint("Vertical", 8, 2, 15, 2),
    Sketcher.Constraint("Vertical", 5, 2, 18, 2),
    Sketcher.Constraint("Vertical", 52, 3, 19, 2),
    Sketcher.Constraint("Vertical", 66, 2, 71, 2),
    Sketcher.Constraint("Equal", 10, 20),
    Sketcher.Constraint("Equal", 4, 7),
    Sketcher.Constraint("Equal", 0, 16),
    Sketcher.Constraint("Equal", 61, 64),
    Sketcher.Constraint("Diameter", 21, Q("3 mm")),
    Sketcher.Constraint("Diameter", 30, Q("2 mm")),
    Sketcher.Constraint("Diameter", 78, Q("5 mm")),
    Sketcher.Constraint("Radius", 32, Q("2 mm")),
    Sketcher.Constraint("Radius", 58, Q("13 mm")),
    Sketcher.Constraint("Diameter", 26, Q("1.85 mm")),
    Sketcher.Constraint("Diameter", 52, Q("12.85 mm")),
    Sketcher.Constraint("DistanceX", 1, 2, 1, 1, Q("36 mm")),
    Sketcher.Constraint("DistanceX", 3, 1, 3, 2, Q("4 mm")),
    Sketcher.Constraint("DistanceX", 6, 1, 6, 2, Q("8 mm")),
    Sketcher.Constraint("DistanceX", 8, 1, 8, 2, Q("60 mm")),
    Sketcher.Constraint("DistanceX", 35, 2, 35, 1, Q("12 mm")),
    Sketcher.Constraint("DistanceY", 2, 1, 2, 2, Q("16 mm")),
    Sketcher.Constraint("DistanceY", 5, 1, 5, 2, Q("18 mm")),
    Sketcher.Constraint("Angle", 0, Q("160 deg")),
    Sketcher.Constraint("DistanceX", -1, 1, 21, 3, Q("46 mm")),
    Sketcher.Constraint("DistanceY", 21, 3, -1, 1, Q("15 mm")),
    Sketcher.Constraint("DistanceX", 36, 3, -1, 1, Q("6 mm")),
    Sketcher.Constraint("DistanceY", 45, 3, -1, 1, Q("11 mm")),
    Sketcher.Constraint("DistanceY", -1, 1, 53, 3, Q("29 mm")),
    Sketcher.Constraint("DistanceY", 58, 3, -1, 1, Q("7 mm")),
    Sketcher.Constraint("DistanceY", -1, 1, 35, 2, Q("13 mm")),
    Sketcher.Constraint("DistanceY", -1, 1, 27, 3, Q("16.87 mm")),
    Sketcher.Constraint("DistanceX", 17, 2, 17, 1, Q("39.69607 mm")),
    Sketcher.Constraint("DistanceX", 27, 3, -1, 1, Q("30.7465 mm")),
    Sketcher.Constraint("Distance", 59, Q("9.257351 mm")),
    Sketcher.Constraint("DistanceX", 31, 2, 31, 1, Q("41.939223 mm")),
    Sketcher.Constraint("DistanceX", 32, 3, -1, 1, Q("20.969612 mm")),
    Sketcher.Constraint("DistanceX", -1, 1, 75, 3, Q("3.181981 mm")),
    Sketcher.Constraint("DistanceY", 75, 3, -1, 1, Q("3.818019 mm")),
    Sketcher.Constraint("DistanceY", 76, 3, -1, 1, Q("10.181981 mm")),
    Sketcher.Constraint("DistanceX", 30, 3, -1, 1, Q("12.727922 mm")),
    Sketcher.Constraint("DistanceY", -1, 1, 30, 3, Q("5.727922 mm")),
    Sketcher.Constraint("DistanceY", 48, 3, -1, 1, Q("19.727922 mm")),
])
pad1 = body.newObject("PartDesign::Pad", "Pad")
pad1.Profile = sketch1
pad1.Length = 2
pad1.Reversed = True
doc.recompute()

fillet = body.newObject("PartDesign::Fillet", "Fillet")
fillet.Base = (pad1, edges_at(pad1, [
    (66, 1, -23),
    (66, 1, -7),
    (62, 1, -7),
    (50, 1, 5),
    (50, 1, 23),
    (42, 1, 23),
    (30, 1, 35),
    (-30, 1, 35),
    (-42, 1, 23),
    (-50, 1, 23),
    (-50, 1, 5),
    (-62, 1, -7),
    (-66, 1, -7),
    (50, 1, -7),
    (50, 1, 1),
    (58, 1, -7),
    (-50, 1, 1),
    (-50, 1, -7),
    (-58, 1, -7),
]))
fillet.Radius = 0.75

sketch2 = body.newObject("Sketcher::SketchObject", "Sketch001")
sketch2.AttachmentSupport = (doc.getObject("XZ_Plane"), [""])
sketch2.MapMode = "FlatFace"
sketch2.AttachmentOffset = App.Placement(App.Vector(0, 0, 2), App.Rotation())
sketch2.addGeometry([
    Part.Circle(App.Vector(-58, -15, 0), App.Vector(0, 0, 1), 7),
    Part.Circle(App.Vector(-58, -15, 0), App.Vector(0, 0, 1), 6),
    Part.Circle(App.Vector(58, -15, 0), App.Vector(0, 0, 1), 7),
    Part.Circle(App.Vector(58, -15, 0), App.Vector(0, 0, 1), 6),
], False)
sketch2.addConstraint([
    Sketcher.Constraint("Coincident", 1, 3, 0, 3),
    Sketcher.Constraint("Coincident", 3, 3, 2, 3),
    Sketcher.Constraint("Equal", 0, 2),
    Sketcher.Constraint("Equal", 1, 3),
    Sketcher.Constraint("Symmetric", 0, 3, 2, 3, -2),
    Sketcher.Constraint("Diameter", 0, Q("14.6 mm")),
    Sketcher.Constraint("Diameter", 1, Q("12.85 mm")),
    Sketcher.Constraint("DistanceX", 0, 3, -1, 1, Q("58 mm")),
    Sketcher.Constraint("DistanceY", 0, 3, -1, 1, Q("15 mm")),
])
pad2 = body.newObject("PartDesign::Pad", "Pad001")
pad2.Profile = sketch2
pad2.Length = 2
pad2.Reversed = True

doc.recompute()
